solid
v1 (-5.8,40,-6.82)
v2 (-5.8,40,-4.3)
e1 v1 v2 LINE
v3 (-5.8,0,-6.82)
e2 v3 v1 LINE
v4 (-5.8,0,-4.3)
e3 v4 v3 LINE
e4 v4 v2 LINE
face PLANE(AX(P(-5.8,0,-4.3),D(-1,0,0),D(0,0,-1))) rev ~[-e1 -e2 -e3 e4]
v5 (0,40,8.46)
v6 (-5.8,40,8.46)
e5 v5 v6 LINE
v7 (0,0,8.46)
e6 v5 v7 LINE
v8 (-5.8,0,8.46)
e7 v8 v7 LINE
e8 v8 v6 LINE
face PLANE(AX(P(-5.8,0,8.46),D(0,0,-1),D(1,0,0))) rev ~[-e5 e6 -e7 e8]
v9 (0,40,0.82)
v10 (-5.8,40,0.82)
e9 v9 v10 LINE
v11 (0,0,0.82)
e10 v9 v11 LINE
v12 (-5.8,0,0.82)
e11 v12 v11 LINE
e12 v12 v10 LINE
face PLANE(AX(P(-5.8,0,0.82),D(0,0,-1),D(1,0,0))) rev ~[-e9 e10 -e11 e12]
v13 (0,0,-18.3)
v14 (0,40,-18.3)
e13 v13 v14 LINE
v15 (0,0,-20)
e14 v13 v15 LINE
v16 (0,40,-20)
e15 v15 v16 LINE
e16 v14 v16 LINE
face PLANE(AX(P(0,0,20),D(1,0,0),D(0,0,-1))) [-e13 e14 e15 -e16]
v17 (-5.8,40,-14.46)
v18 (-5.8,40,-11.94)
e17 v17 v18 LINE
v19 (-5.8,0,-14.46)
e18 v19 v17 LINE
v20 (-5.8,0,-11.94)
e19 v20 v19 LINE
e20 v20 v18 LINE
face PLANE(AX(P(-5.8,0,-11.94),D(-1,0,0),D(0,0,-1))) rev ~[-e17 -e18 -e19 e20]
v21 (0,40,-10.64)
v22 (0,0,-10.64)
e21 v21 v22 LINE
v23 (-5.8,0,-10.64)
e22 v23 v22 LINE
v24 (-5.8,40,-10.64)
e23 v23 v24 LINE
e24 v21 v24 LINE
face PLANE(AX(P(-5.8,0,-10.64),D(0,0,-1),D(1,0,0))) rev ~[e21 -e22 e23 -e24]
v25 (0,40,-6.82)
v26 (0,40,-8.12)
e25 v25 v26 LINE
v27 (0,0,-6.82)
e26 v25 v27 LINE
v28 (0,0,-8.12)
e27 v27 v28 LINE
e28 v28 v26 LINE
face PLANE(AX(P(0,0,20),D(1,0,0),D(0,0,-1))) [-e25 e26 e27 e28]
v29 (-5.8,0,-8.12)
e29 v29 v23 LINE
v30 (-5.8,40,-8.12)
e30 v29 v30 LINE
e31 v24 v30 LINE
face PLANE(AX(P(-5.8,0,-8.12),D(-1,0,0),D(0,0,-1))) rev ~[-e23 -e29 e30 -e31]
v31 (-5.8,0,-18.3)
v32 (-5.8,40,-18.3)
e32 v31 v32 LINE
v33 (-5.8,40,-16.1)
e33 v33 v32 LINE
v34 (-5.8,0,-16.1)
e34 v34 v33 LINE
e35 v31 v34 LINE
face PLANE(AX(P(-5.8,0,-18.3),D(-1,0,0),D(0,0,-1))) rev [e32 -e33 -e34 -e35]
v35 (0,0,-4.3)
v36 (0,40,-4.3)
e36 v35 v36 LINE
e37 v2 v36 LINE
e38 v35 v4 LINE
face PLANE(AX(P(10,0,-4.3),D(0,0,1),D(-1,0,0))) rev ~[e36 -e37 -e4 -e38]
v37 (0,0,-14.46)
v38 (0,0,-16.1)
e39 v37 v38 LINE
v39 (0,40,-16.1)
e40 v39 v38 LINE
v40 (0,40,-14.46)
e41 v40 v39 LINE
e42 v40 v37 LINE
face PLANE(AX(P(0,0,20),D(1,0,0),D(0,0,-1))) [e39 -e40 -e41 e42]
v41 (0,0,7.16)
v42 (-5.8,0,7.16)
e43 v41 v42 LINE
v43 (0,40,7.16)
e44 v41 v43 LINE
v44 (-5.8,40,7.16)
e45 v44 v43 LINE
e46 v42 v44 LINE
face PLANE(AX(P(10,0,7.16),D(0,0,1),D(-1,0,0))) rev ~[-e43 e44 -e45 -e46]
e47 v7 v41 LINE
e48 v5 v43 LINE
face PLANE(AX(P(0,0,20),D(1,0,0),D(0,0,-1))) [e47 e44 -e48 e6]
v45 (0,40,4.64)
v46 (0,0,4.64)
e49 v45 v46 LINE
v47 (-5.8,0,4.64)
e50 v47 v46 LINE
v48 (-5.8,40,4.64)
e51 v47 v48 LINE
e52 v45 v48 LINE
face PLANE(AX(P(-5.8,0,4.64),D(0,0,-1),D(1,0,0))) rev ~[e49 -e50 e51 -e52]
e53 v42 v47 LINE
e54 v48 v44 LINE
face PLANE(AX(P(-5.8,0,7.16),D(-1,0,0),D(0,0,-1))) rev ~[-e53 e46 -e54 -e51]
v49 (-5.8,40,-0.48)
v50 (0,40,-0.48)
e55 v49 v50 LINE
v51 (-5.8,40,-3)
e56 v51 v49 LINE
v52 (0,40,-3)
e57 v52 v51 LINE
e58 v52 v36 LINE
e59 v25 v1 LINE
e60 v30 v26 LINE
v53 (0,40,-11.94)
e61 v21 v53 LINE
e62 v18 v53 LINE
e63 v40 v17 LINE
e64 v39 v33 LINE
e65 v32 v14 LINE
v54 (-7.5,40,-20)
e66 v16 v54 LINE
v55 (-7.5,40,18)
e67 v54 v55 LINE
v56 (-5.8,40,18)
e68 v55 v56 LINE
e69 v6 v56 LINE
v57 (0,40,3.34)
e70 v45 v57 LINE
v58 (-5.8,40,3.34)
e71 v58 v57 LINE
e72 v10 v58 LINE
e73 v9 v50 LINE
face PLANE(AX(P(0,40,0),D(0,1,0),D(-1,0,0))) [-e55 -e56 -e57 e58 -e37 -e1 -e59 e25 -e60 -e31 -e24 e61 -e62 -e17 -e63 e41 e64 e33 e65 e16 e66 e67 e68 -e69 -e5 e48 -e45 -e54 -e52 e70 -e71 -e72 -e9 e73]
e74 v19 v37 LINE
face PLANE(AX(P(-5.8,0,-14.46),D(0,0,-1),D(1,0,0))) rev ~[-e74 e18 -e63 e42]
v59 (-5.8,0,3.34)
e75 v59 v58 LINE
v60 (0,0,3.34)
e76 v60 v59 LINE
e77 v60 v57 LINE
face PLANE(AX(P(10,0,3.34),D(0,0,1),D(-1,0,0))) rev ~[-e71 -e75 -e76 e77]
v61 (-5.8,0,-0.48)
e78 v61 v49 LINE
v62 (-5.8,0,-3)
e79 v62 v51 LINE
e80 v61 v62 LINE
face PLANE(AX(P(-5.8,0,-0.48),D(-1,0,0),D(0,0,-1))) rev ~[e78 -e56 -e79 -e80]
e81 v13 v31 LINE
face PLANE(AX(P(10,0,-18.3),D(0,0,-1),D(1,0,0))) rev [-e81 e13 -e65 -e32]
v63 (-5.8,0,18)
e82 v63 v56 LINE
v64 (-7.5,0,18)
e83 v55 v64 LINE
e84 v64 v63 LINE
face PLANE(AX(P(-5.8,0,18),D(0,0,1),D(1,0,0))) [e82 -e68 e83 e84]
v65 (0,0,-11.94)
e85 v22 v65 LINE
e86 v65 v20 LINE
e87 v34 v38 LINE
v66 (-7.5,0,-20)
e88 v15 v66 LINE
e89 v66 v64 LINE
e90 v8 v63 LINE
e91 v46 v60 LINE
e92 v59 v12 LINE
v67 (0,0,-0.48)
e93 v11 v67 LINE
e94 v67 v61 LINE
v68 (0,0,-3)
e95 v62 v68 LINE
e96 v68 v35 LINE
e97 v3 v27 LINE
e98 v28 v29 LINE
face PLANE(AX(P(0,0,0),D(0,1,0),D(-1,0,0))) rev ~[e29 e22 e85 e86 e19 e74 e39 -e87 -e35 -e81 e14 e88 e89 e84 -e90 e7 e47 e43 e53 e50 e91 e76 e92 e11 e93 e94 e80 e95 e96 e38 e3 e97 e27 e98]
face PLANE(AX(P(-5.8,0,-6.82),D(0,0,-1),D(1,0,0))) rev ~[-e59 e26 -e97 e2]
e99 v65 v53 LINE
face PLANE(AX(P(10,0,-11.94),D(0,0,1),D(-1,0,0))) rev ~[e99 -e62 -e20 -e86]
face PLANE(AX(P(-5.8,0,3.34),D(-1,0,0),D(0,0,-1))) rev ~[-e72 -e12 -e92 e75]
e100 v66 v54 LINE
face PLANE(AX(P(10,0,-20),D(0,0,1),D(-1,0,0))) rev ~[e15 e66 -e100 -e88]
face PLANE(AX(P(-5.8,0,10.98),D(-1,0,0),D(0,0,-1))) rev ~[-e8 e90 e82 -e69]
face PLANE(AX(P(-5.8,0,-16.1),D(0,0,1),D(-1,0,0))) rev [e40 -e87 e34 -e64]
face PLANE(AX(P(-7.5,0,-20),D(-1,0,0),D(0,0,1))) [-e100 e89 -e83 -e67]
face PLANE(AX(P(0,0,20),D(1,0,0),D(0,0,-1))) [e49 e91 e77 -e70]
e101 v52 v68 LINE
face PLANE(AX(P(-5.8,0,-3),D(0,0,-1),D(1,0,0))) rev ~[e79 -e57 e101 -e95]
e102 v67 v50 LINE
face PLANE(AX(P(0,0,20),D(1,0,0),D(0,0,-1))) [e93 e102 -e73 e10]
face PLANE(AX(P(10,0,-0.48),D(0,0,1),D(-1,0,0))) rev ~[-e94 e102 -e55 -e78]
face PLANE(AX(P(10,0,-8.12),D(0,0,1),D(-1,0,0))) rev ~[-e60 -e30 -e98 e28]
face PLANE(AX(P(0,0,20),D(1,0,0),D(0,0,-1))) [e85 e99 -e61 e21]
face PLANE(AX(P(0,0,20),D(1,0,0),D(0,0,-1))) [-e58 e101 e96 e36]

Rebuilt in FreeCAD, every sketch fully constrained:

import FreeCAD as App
import Part
import Sketcher

V = App.Vector

doc = App.newDocument("Part")
body = doc.addObject("PartDesign::Body", "Body")

sketch1 = body.newObject("Sketcher::SketchObject", "Sketch")
sketch1.AttachmentSupport = (doc.getObject("XZ_Plane"), [""])
sketch1.MapMode = "FlatFace"
sketch1.addGeometry([
    Part.LineSegment(V(10, 20, 0), V(10, -20, 0)),
    Part.LineSegment(V(10, -20, 0), V(-10, -20, 0)),
    Part.LineSegment(V(-10, -20, 0), V(-10, 20, 0)),
    Part.LineSegment(V(-10, 20, 0), V(10, 20, 0)),
], False)
sketch1.addConstraint([
    Sketcher.Constraint("Coincident", 0, 2, 1, 1),
    Sketcher.Constraint("Coincident", 1, 2, 2, 1),
    Sketcher.Constraint("Coincident", 2, 2, 3, 1),
    Sketcher.Constraint("Coincident", 3, 2, 0, 1),
    Sketcher.Constraint("Vertical", 0),
    Sketcher.Constraint("Horizontal", 1),
    Sketcher.Constraint("Vertical", 2),
    Sketcher.Constraint("Horizontal", 3),
    Sketcher.Constraint("Symmetric", 0, 2, 2, 2, -1, 1),
    Sketcher.Constraint("DistanceX", 1, 2, 1, 1, 20.0),
    Sketcher.Constraint("DistanceY", 0, 2, 0, 1, 40.0),
])
pad1 = body.newObject("PartDesign::Pad", "Pad")
pad1.Profile = sketch1
pad1.Length = 40
pad1.Reversed = True

sketch2 = body.newObject("Sketcher::SketchObject", "Sketch001")
sketch2.AttachmentSupport = (doc.getObject("XZ_Plane"), [""])
sketch2.MapMode = "FlatFace"
sketch2.addGeometry([
    Part.LineSegment(V(-5.8, 16.1, 0), V(10, 16.1, 0)),
    Part.LineSegment(V(10, 16.1, 0), V(10, 18.3, 0)),
    Part.LineSegment(V(10, 18.3, 0), V(-5.8, 18.3, 0)),
    Part.LineSegment(V(-5.8, 18.3, 0), V(-5.8, 16.1, 0)),
], False)
sketch2.addConstraint([
    Sketcher.Constraint("Coincident", 0, 2, 1, 1),
    Sketcher.Constraint("Coincident", 1, 2, 2, 1),
    Sketcher.Constraint("Coincident", 2, 2, 3, 1),
    Sketcher.Constraint("Coincident", 3, 2, 0, 1),
    Sketcher.Constraint("Horizontal", 0),
    Sketcher.Constraint("Vertical", 1),
    Sketcher.Constraint("Horizontal", 2),
    Sketcher.Constraint("Vertical", 3),
    Sketcher.Constraint("DistanceY", 1, 1, 1, 2, 2.2),
    Sketcher.Constraint("DistanceX", 0, 1, 0, 2, 15.8),
    Sketcher.Constraint("DistanceX", -1, 1, 0, 2, 10.0),
    Sketcher.Constraint("DistanceY", -1, 1, 0, 2, 16.1),
])
pocket1 = body.newObject("PartDesign::Pocket", "Pocket")
pocket1.Profile = sketch2
pocket1.Type = "ThroughAll"
doc.recompute()

mirrored = body.newObject("PartDesign::Mirrored", "Mirrored")
mirrored.Originals = [pocket1]
mirrored.MirrorPlane = (doc.getObject("XY_Plane"), [""])
body.Tip = mirrored

sketch3 = body.newObject("Sketcher::SketchObject", "Sketch002")
sketch3.AttachmentSupport = (doc.getObject("XZ_Plane"), [""])
sketch3.MapMode = "FlatFace"
sketch3.addGeometry([
    Part.LineSegment(V(-5.8, 12.28, 0), V(10, 12.28, 0)),
    Part.LineSegment(V(10, 12.28, 0), V(10, 14.8, 0)),
    Part.LineSegment(V(10, 14.8, 0), V(-5.8, 14.8, 0)),
    Part.LineSegment(V(-5.8, 14.8, 0), V(-5.8, 12.28, 0)),
], False)
sketch3.addConstraint([
    Sketcher.Constraint("Coincident", 0, 2, 1, 1),
    Sketcher.Constraint("Coincident", 1, 2, 2, 1),
    Sketcher.Constraint("Coincident", 2, 2, 3, 1),
    Sketcher.Constraint("Coincident", 3, 2, 0, 1),
    Sketcher.Constraint("Horizontal", 0),
    Sketcher.Constraint("Vertical", 1),
    Sketcher.Constraint("Horizontal", 2),
    Sketcher.Constraint("Vertical", 3),
    Sketcher.Constraint("DistanceY", 1, 1, 1, 2, 2.52),
    Sketcher.Constraint("DistanceX", 0, 1, 0, 2, 15.8),
    Sketcher.Constraint("DistanceX", -1, 1, 0, 2, 10.0),
    Sketcher.Constraint("DistanceY", -1, 1, 1, 2, 14.8),
])
pocket2 = body.newObject("PartDesign::Pocket", "Pocket001")
pocket2.Profile = sketch3
pocket2.Type = "ThroughAll"
doc.recompute()

linearpattern = body.newObject("PartDesign::LinearPattern", "LinearPattern")
linearpattern.Originals = [pocket2]
linearpattern.Direction = (doc.getObject("Z_Axis"), [""])
linearpattern.Mode = "offset"
linearpattern.Offset = 3.82
linearpattern.Occurrences = 8
linearpattern.Reversed = True
body.Tip = linearpattern

sketch4 = body.newObject("Sketcher::SketchObject", "Sketch003")
sketch4.AttachmentSupport = (doc.getObject("YZ_Plane"), [""])
sketch4.MapMode = "FlatFace"
sketch4.AttachmentOffset = App.Placement(V(0, 0, -10), App.Rotation())
sketch4.addGeometry([
    Part.LineSegment(V(40, -20, 0), V(0, -20, 0)),
    Part.LineSegment(V(0, -20, 0), V(0, 20, 0)),
    Part.LineSegment(V(0, 20, 0), V(40, 20, 0)),
    Part.LineSegment(V(40, 20, 0), V(40, -20, 0)),
], False)
sketch4.addConstraint([
    Sketcher.Constraint("Coincident", 0, 2, 1, 1),
    Sketcher.Constraint("Coincident", 1, 2, 2, 1),
    Sketcher.Constraint("Coincident", 2, 2, 3, 1),
    Sketcher.Constraint("Coincident", 3, 2, 0, 1),
    Sketcher.Constraint("Horizontal", 0),
    Sketcher.Constraint("Vertical", 1),
    Sketcher.Constraint("Horizontal", 2),
    Sketcher.Constraint("Vertical", 3),
    Sketcher.Constraint("Symmetric", 0, 2, 1, 2, -1, 1),
    Sketcher.Constraint("Equal", 2, 1),
    Sketcher.Constraint("DistanceX", 0, 2, 0, 1, 40.0),
])
pocket3 = body.newObject("PartDesign::Pocket", "Pocket002")
pocket3.Profile = sketch4
pocket3.Length = 2.5
pocket3.Reversed = True

sketch5 = body.newObject("Sketcher::SketchObject", "Sketch004")
sketch5.AttachmentSupport = (doc.getObject("YZ_Plane"), [""])
sketch5.MapMode = "FlatFace"
sketch5.AttachmentOffset = App.Placement(V(0, 0, 10), App.Rotation())
sketch5.addGeometry([
    Part.LineSegment(V(101.8937, 27.9901, 0), V(-7.3422, 27.9901, 0)),
    Part.LineSegment(V(-7.3422, 27.9901, 0), V(-7.3422, -33.3048, 0)),
    Part.LineSegment(V(-7.3422, -33.3048, 0), V(101.8937, -33.3048, 0)),
    Part.LineSegment(V(101.8937, -33.3048, 0), V(101.8937, 27.9901, 0)),
], False)
sketch5.addConstraint([
    Sketcher.Constraint("Coincident", 0, 2, 1, 1),
    Sketcher.Constraint("Coincident", 1, 2, 2, 1),
    Sketcher.Constraint("Coincident", 2, 2, 3, 1),
    Sketcher.Constraint("Coincident", 3, 2, 0, 1),
    Sketcher.Constraint("Horizontal", 0),
    Sketcher.Constraint("Vertical", 1),
    Sketcher.Constraint("Horizontal", 2),
    Sketcher.Constraint("Vertical", 3),
    Sketcher.Constraint("DistanceX", 0, 2, 0, 1, 109.236),
    Sketcher.Constraint("DistanceY", 1, 2, 1, 1, 61.295),
    Sketcher.Constraint("DistanceY", -1, 1, 0, 2, 27.99),
    Sketcher.Constraint("DistanceX", 0, 2, -1, 1, 7.3422),
])
pocket4 = body.newObject("PartDesign::Pocket", "Pocket003")
pocket4.Profile = sketch5
pocket4.Length = 10

sketch6 = body.newObject("Sketcher::SketchObject", "Sketch005")
sketch6.AttachmentSupport = (doc.getObject("YZ_Plane"), [""])
sketch6.MapMode = "FlatFace"
sketch6.addGeometry([
    Part.LineSegment(V(40, 20, 0), V(0, 20, 0)),
    Part.LineSegment(V(0, 20, 0), V(0, 8.46, 0)),
    Part.LineSegment(V(0, 8.46, 0), V(40, 8.46, 0)),
    Part.LineSegment(V(40, 8.46, 0), V(40, 20, 0)),
], False)
sketch6.addConstraint([
    Sketcher.Constraint("Coincident", 0, 2, 1, 1),
    Sketcher.Constraint("Coincident", 1, 2, 2, 1),
    Sketcher.Constraint("Coincident", 2, 2, 3, 1),
    Sketcher.Constraint("Coincident", 3, 2, 0, 1),
    Sketcher.Constraint("Horizontal", 0),
    Sketcher.Constraint("Vertical", 1),
    Sketcher.Constraint("Horizontal", 2),
    Sketcher.Constraint("Vertical", 3),
    Sketcher.Constraint("PointOnObject", 0, 2, -2),
    Sketcher.Constraint("DistanceX", 0, 2, 0, 1, 40.0),
    Sketcher.Constraint("DistanceY", -1, 1, 0, 2, 20.0),
    Sketcher.Constraint("DistanceY", 1, 2, 1, 1, 11.54),
])
pocket5 = body.newObject("PartDesign::Pocket", "Pocket004")
pocket5.Profile = sketch6
pocket5.Length = 5.8

sketch7 = body.newObject("Sketcher::SketchObject", "Sketch006")
sketch7.AttachmentSupport = (doc.getObject("XY_Plane"), [""])
sketch7.MapMode = "FlatFace"
sketch7.AttachmentOffset = App.Placement(V(0, 0, 20), App.Rotation())
sketch7.addGeometry([
    Part.LineSegment(V(-7.5, 0, 0), V(-5.8, 0, 0)),
    Part.LineSegment(V(-5.8, 0, 0), V(-5.8, 40, 0)),
    Part.LineSegment(V(-5.8, 40, 0), V(-7.5, 40, 0)),
    Part.LineSegment(V(-7.5, 40, 0), V(-7.5, 0, 0)),
], False)
sketch7.addConstraint([
    Sketcher.Constraint("Coincident", 0, 2, 1, 1),
    Sketcher.Constraint("Coincident", 1, 2, 2, 1),
    Sketcher.Constraint("Coincident", 2, 2, 3, 1),
    Sketcher.Constraint("Coincident", 3, 2, 0, 1),
    Sketcher.Constraint("Horizontal", 0),
    Sketcher.Constraint("Vertical", 1),
    Sketcher.Constraint("Horizontal", 2),
    Sketcher.Constraint("Vertical", 3),
    Sketcher.Constraint("PointOnObject", 0, 2, -1),
    Sketcher.Constraint("DistanceY", 1, 1, 1, 2, 40.0),
    Sketcher.Constraint("DistanceX", 0, 1, 0, 2, 1.7),
    Sketcher.Constraint("DistanceX", 0, 2, -1, 1, 5.8),
])
pocket6 = body.newObject("PartDesign::Pocket", "Pocket005")
pocket6.Profile = sketch7
pocket6.Length = 2

doc.recompute()
